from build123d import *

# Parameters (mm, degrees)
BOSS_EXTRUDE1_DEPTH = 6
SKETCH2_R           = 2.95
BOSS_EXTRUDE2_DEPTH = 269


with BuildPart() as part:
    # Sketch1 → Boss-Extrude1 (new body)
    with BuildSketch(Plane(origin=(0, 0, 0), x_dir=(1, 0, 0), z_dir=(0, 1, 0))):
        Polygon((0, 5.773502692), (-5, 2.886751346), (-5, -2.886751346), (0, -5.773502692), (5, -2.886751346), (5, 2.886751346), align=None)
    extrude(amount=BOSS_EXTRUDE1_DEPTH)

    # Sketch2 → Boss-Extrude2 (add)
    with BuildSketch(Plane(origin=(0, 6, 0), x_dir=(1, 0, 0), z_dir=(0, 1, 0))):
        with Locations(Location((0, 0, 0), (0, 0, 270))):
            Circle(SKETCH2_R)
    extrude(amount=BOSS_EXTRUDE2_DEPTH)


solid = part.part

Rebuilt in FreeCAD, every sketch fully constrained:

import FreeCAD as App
import Part
import Sketcher

V = App.Vector
Q = App.Units.Quantity

doc = App.newDocument("Part")
body = doc.addObject("PartDesign::Body", "Body")

# Sketch on XZ plane
sketch1 = doc.addObject("Sketcher::SketchObject", "Sketch")
body.addObject(sketch1)
sketch1.AttachmentSupport = (doc.XZ_Plane, [""])
sketch1.MapMode = "FlatFace"
sketch1.addGeometry(Part.LineSegment(V(0, -6, 0), V(-5, -3, 0)), False)
sketch1.addGeometry(Part.LineSegment(V(-5, -3, 0), V(-5, 3, 0)), False)
sketch1.addGeometry(Part.LineSegment(V(-5, 3, 0), V(0, 6, 0)), False)
sketch1.addGeometry(Part.LineSegment(V(0, 6, 0), V(5, 3, 0)), False)
sketch1.addGeometry(Part.LineSegment(V(5, 3, 0), V(5, -3, 0)), False)
sketch1.addGeometry(Part.LineSegment(V(5, -3, 0), V(0, -6, 0)), False)
sketch1.addConstraint(Sketcher.Constraint("Coincident", 0, 2, 1, 1))
sketch1.addConstraint(Sketcher.Constraint("Coincident", 1, 2, 2, 1))
sketch1.addConstraint(Sketcher.Constraint("Coincident", 2, 2, 3, 1))
sketch1.addConstraint(Sketcher.Constraint("Coincident", 3, 2, 4, 1))
sketch1.addConstraint(Sketcher.Constraint("Coincident", 4, 2, 5, 1))
sketch1.addConstraint(Sketcher.Constraint("Coincident", 5, 2, 0, 1))
sketch1.addConstraint(Sketcher.Constraint("Vertical", 1))
sketch1.addConstraint(Sketcher.Constraint("Vertical", 4))
sketch1.addConstraint(Sketcher.Constraint("Symmetric", 0, 2, 3, 2, -1, 1))
sketch1.addConstraint(Sketcher.Constraint("Symmetric", 2, 2, 5, 2, -1, 1))
sketch1.addConstraint(Sketcher.Constraint("PointOnObject", 2, 2, -2))
sketch1.addConstraint(Sketcher.Constraint("Parallel", 2, 5))
sketch1.addConstraint(Sketcher.Constraint("Horizontal", 1, 2, 3, 2))
sketch1.addConstraint(Sketcher.Constraint("Angle", 0, Q("150 deg")))
sketch1.addConstraint(Sketcher.Constraint("DistanceX", 0, 2, -1, 1, Q("5 mm")))
sketch1.addConstraint(Sketcher.Constraint("DistanceY", 1, 1, 1, 2, Q("5.773503 mm")))
pad1 = doc.addObject("PartDesign::Pad", "Pad")
body.addObject(pad1)
pad1.Profile = sketch1
pad1.Length = 6
pad1.Reversed = True

# Sketch on XZ plane
sketch2 = doc.addObject("Sketcher::SketchObject", "Sketch001")
body.addObject(sketch2)
sketch2.AttachmentSupport = (doc.XZ_Plane, [""])
sketch2.MapMode = "FlatFace"
sketch2.AttachmentOffset = App.Placement(V(0, 0, -6), App.Rotation())
sketch2.addGeometry(Part.Circle(V(0, 0, 0), V(0, 0, 1), 3), False)
sketch2.addConstraint(Sketcher.Constraint("Coincident", 0, 3, -1, 1))
sketch2.addConstraint(Sketcher.Constraint("Diameter", 0, Q("5.9 mm")))
pad2 = doc.addObject("PartDesign::Pad", "Pad001")
body.addObject(pad2)
pad2.Profile = sketch2
pad2.Length = 269
pad2.Reversed = True

doc.recompute()
